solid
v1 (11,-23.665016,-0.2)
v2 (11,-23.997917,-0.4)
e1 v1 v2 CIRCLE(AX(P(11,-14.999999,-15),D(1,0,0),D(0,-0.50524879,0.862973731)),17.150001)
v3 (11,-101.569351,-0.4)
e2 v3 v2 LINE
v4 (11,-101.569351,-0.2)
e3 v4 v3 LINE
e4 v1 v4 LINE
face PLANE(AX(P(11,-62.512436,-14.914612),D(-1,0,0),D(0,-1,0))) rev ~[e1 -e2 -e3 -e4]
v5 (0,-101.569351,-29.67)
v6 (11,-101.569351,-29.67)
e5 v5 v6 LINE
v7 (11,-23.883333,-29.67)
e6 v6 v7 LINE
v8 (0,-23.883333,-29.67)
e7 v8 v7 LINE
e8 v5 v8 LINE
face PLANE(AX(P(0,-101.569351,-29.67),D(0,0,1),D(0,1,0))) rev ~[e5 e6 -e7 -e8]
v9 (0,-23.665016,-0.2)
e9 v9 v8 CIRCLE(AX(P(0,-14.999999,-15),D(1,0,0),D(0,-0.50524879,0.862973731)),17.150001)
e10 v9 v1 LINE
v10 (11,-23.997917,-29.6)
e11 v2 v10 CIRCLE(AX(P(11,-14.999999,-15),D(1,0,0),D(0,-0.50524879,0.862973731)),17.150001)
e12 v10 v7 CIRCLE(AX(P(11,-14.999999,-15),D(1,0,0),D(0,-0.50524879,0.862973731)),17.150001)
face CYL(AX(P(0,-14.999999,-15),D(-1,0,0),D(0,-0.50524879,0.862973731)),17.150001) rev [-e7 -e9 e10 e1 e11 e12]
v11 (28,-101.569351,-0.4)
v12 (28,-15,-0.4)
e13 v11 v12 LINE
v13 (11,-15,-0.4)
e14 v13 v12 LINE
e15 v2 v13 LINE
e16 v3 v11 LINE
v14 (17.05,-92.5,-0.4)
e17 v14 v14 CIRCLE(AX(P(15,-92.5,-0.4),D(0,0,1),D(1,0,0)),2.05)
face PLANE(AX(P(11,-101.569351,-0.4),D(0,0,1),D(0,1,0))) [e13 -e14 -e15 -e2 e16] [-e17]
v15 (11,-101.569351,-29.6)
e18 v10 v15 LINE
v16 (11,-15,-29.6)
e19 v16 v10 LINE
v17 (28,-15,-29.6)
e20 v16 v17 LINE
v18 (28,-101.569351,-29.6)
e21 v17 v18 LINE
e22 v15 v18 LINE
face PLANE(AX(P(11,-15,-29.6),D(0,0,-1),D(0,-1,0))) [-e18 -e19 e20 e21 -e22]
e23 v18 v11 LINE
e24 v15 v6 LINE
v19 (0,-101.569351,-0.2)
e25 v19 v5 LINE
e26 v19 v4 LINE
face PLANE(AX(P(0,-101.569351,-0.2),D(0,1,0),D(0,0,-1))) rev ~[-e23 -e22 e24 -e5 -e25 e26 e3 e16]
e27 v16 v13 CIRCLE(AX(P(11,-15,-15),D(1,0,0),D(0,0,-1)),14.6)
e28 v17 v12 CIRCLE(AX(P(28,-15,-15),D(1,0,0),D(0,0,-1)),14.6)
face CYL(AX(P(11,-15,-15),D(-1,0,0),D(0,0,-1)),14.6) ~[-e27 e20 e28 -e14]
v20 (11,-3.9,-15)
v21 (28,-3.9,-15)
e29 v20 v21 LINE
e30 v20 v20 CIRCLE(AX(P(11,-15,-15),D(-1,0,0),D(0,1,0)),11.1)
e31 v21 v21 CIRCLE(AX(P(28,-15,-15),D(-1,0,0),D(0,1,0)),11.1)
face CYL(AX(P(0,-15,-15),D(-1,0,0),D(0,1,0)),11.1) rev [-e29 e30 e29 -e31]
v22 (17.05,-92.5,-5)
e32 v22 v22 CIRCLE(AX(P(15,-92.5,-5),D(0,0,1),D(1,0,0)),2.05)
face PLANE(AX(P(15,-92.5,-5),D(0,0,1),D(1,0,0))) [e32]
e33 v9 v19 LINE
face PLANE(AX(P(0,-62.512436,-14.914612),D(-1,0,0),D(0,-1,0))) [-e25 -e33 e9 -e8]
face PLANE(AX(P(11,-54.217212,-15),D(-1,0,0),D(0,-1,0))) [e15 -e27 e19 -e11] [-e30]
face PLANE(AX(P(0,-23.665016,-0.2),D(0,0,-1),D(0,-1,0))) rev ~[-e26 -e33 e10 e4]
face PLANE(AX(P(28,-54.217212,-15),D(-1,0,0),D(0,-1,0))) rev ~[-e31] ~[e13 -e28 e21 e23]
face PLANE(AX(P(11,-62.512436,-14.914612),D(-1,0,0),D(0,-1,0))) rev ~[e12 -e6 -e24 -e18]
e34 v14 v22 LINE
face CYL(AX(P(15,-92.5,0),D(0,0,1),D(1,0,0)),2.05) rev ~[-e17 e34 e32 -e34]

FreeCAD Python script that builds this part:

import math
import FreeCAD as App
import Part
import Sketcher

V = App.Vector
Q = App.Units.Quantity

doc = App.newDocument("Part")
body = doc.addObject("PartDesign::Body", "Body")

sketch1 = doc.addObject("Sketcher::SketchObject", "Sketch")
body.addObject(sketch1)
sketch1.AttachmentSupport = (doc.YZ_Plane, [""])
sketch1.MapMode = "FlatFace"
sketch1.AttachmentOffset = App.Placement(V(0, 0, 11), App.Rotation())
sketch1.addGeometry([
    Part.LineSegment(V(-102, -30, 0), V(-15, -30, 0)),
    Part.ArcOfCircle(Part.Circle(V(-15, -15, 0), V(0, 0, 1), 15), math.radians(-90), math.radians(90)),
    Part.LineSegment(V(-15, 0, 0), V(-102, 0, 0)),
    Part.LineSegment(V(-102, 0, 0), V(-102, -30, 0)),
], False)
sketch1.addConstraint([
    Sketcher.Constraint("Tangent", 0, 2, 1, 1),
    Sketcher.Constraint("Tangent", 1, 2, 2, 1),
    Sketcher.Constraint("Coincident", 2, 2, 3, 1),
    Sketcher.Constraint("Coincident", 3, 2, 0, 1),
    Sketcher.Constraint("Horizontal", 0),
    Sketcher.Constraint("Horizontal", 2),
    Sketcher.Constraint("Vertical", 3),
    Sketcher.Constraint("Radius", 1, Q("14.6 mm")),
    Sketcher.Constraint("DistanceX", 1, 3, -1, 1, Q("15 mm")),
    Sketcher.Constraint("DistanceY", 1, 3, -1, 1, Q("15 mm")),
    Sketcher.Constraint("DistanceX", 0, 1, 0, 2, Q("86.569351 mm")),
])
pad1 = doc.addObject("PartDesign::Pad", "Pad")
body.addObject(pad1)
pad1.Profile = sketch1
pad1.Length = 17

sketch2 = doc.addObject("Sketcher::SketchObject", "Sketch001")
body.addObject(sketch2)
sketch2.AttachmentSupport = (doc.YZ_Plane, [""])
sketch2.MapMode = "FlatFace"
sketch2.addGeometry([
    Part.ArcOfCircle(Part.Circle(V(-15, -15, 0), V(0, 0, 1), 17), math.radians(120), math.radians(239)),
    Part.LineSegment(V(-24, 0, 0), V(-102, 0, 0)),
    Part.LineSegment(V(-102, 0, 0), V(-102, -30, 0)),
    Part.LineSegment(V(-102, -30, 0), V(-24, -30, 0)),
], False)
sketch2.addConstraint([
    Sketcher.Constraint("Coincident", 0, 1, 1, 1),
    Sketcher.Constraint("Coincident", 1, 2, 2, 1),
    Sketcher.Constraint("Coincident", 2, 2, 3, 1),
    Sketcher.Constraint("Coincident", 3, 2, 0, 2),
    Sketcher.Constraint("Horizontal", 1),
    Sketcher.Constraint("Vertical", 2),
    Sketcher.Constraint("Horizontal", 3),
    Sketcher.Constraint("Radius", 0, Q("17.150001 mm")),
    Sketcher.Constraint("DistanceX", 0, 3, -1, 1, Q("14.999999 mm")),
    Sketcher.Constraint("DistanceY", 0, 3, -1, 1, Q("15 mm")),
    Sketcher.Constraint("DistanceY", 2, 2, 2, 1, Q("29.47 mm")),
    Sketcher.Constraint("DistanceY", 0, 1, -1, 1, Q("0.2 mm")),
    Sketcher.Constraint("DistanceX", 1, 2, 1, 1, Q("77.904335 mm")),
])
pad2 = doc.addObject("PartDesign::Pad", "Pad001")
body.addObject(pad2)
pad2.Profile = sketch2
pad2.Length = 11

sketch3 = doc.addObject("Sketcher::SketchObject", "Sketch002")
body.addObject(sketch3)
sketch3.AttachmentSupport = (doc.YZ_Plane, [""])
sketch3.MapMode = "FlatFace"
sketch3.addGeometry(Part.Circle(V(-15, -15, 0), V(0, 0, 1), 11), False)
sketch3.addConstraint([
    Sketcher.Constraint("Diameter", 0, Q("22.2 mm")),
    Sketcher.Constraint("DistanceX", 0, 3, -1, 1, Q("15 mm")),
    Sketcher.Constraint("DistanceY", 0, 3, -1, 1, Q("15 mm")),
])
pocket1 = doc.addObject("PartDesign::Pocket", "Pocket")
body.addObject(pocket1)
pocket1.Profile = sketch3
pocket1.Length = 35
pocket1.Reversed = True

sketch4 = doc.addObject("Sketcher::SketchObject", "Sketch003")
body.addObject(sketch4)
sketch4.AttachmentSupport = (doc.XY_Plane, [""])
sketch4.MapMode = "FlatFace"
sketch4.addGeometry(Part.Circle(V(15, -92.5, 0), V(0, 0, 1), 2), False)
sketch4.addConstraint([
    Sketcher.Constraint("Diameter", 0, Q("4.1 mm")),
    Sketcher.Constraint("DistanceX", -1, 1, 0, 3, Q("15 mm")),
    Sketcher.Constraint("DistanceY", 0, 3, -1, 1, Q("92.5 mm")),
])
pocket2 = doc.addObject("PartDesign::Pocket", "Pocket001")
body.addObject(pocket2)
pocket2.Profile = sketch4
pocket2.Length = 5

doc.recompute()
